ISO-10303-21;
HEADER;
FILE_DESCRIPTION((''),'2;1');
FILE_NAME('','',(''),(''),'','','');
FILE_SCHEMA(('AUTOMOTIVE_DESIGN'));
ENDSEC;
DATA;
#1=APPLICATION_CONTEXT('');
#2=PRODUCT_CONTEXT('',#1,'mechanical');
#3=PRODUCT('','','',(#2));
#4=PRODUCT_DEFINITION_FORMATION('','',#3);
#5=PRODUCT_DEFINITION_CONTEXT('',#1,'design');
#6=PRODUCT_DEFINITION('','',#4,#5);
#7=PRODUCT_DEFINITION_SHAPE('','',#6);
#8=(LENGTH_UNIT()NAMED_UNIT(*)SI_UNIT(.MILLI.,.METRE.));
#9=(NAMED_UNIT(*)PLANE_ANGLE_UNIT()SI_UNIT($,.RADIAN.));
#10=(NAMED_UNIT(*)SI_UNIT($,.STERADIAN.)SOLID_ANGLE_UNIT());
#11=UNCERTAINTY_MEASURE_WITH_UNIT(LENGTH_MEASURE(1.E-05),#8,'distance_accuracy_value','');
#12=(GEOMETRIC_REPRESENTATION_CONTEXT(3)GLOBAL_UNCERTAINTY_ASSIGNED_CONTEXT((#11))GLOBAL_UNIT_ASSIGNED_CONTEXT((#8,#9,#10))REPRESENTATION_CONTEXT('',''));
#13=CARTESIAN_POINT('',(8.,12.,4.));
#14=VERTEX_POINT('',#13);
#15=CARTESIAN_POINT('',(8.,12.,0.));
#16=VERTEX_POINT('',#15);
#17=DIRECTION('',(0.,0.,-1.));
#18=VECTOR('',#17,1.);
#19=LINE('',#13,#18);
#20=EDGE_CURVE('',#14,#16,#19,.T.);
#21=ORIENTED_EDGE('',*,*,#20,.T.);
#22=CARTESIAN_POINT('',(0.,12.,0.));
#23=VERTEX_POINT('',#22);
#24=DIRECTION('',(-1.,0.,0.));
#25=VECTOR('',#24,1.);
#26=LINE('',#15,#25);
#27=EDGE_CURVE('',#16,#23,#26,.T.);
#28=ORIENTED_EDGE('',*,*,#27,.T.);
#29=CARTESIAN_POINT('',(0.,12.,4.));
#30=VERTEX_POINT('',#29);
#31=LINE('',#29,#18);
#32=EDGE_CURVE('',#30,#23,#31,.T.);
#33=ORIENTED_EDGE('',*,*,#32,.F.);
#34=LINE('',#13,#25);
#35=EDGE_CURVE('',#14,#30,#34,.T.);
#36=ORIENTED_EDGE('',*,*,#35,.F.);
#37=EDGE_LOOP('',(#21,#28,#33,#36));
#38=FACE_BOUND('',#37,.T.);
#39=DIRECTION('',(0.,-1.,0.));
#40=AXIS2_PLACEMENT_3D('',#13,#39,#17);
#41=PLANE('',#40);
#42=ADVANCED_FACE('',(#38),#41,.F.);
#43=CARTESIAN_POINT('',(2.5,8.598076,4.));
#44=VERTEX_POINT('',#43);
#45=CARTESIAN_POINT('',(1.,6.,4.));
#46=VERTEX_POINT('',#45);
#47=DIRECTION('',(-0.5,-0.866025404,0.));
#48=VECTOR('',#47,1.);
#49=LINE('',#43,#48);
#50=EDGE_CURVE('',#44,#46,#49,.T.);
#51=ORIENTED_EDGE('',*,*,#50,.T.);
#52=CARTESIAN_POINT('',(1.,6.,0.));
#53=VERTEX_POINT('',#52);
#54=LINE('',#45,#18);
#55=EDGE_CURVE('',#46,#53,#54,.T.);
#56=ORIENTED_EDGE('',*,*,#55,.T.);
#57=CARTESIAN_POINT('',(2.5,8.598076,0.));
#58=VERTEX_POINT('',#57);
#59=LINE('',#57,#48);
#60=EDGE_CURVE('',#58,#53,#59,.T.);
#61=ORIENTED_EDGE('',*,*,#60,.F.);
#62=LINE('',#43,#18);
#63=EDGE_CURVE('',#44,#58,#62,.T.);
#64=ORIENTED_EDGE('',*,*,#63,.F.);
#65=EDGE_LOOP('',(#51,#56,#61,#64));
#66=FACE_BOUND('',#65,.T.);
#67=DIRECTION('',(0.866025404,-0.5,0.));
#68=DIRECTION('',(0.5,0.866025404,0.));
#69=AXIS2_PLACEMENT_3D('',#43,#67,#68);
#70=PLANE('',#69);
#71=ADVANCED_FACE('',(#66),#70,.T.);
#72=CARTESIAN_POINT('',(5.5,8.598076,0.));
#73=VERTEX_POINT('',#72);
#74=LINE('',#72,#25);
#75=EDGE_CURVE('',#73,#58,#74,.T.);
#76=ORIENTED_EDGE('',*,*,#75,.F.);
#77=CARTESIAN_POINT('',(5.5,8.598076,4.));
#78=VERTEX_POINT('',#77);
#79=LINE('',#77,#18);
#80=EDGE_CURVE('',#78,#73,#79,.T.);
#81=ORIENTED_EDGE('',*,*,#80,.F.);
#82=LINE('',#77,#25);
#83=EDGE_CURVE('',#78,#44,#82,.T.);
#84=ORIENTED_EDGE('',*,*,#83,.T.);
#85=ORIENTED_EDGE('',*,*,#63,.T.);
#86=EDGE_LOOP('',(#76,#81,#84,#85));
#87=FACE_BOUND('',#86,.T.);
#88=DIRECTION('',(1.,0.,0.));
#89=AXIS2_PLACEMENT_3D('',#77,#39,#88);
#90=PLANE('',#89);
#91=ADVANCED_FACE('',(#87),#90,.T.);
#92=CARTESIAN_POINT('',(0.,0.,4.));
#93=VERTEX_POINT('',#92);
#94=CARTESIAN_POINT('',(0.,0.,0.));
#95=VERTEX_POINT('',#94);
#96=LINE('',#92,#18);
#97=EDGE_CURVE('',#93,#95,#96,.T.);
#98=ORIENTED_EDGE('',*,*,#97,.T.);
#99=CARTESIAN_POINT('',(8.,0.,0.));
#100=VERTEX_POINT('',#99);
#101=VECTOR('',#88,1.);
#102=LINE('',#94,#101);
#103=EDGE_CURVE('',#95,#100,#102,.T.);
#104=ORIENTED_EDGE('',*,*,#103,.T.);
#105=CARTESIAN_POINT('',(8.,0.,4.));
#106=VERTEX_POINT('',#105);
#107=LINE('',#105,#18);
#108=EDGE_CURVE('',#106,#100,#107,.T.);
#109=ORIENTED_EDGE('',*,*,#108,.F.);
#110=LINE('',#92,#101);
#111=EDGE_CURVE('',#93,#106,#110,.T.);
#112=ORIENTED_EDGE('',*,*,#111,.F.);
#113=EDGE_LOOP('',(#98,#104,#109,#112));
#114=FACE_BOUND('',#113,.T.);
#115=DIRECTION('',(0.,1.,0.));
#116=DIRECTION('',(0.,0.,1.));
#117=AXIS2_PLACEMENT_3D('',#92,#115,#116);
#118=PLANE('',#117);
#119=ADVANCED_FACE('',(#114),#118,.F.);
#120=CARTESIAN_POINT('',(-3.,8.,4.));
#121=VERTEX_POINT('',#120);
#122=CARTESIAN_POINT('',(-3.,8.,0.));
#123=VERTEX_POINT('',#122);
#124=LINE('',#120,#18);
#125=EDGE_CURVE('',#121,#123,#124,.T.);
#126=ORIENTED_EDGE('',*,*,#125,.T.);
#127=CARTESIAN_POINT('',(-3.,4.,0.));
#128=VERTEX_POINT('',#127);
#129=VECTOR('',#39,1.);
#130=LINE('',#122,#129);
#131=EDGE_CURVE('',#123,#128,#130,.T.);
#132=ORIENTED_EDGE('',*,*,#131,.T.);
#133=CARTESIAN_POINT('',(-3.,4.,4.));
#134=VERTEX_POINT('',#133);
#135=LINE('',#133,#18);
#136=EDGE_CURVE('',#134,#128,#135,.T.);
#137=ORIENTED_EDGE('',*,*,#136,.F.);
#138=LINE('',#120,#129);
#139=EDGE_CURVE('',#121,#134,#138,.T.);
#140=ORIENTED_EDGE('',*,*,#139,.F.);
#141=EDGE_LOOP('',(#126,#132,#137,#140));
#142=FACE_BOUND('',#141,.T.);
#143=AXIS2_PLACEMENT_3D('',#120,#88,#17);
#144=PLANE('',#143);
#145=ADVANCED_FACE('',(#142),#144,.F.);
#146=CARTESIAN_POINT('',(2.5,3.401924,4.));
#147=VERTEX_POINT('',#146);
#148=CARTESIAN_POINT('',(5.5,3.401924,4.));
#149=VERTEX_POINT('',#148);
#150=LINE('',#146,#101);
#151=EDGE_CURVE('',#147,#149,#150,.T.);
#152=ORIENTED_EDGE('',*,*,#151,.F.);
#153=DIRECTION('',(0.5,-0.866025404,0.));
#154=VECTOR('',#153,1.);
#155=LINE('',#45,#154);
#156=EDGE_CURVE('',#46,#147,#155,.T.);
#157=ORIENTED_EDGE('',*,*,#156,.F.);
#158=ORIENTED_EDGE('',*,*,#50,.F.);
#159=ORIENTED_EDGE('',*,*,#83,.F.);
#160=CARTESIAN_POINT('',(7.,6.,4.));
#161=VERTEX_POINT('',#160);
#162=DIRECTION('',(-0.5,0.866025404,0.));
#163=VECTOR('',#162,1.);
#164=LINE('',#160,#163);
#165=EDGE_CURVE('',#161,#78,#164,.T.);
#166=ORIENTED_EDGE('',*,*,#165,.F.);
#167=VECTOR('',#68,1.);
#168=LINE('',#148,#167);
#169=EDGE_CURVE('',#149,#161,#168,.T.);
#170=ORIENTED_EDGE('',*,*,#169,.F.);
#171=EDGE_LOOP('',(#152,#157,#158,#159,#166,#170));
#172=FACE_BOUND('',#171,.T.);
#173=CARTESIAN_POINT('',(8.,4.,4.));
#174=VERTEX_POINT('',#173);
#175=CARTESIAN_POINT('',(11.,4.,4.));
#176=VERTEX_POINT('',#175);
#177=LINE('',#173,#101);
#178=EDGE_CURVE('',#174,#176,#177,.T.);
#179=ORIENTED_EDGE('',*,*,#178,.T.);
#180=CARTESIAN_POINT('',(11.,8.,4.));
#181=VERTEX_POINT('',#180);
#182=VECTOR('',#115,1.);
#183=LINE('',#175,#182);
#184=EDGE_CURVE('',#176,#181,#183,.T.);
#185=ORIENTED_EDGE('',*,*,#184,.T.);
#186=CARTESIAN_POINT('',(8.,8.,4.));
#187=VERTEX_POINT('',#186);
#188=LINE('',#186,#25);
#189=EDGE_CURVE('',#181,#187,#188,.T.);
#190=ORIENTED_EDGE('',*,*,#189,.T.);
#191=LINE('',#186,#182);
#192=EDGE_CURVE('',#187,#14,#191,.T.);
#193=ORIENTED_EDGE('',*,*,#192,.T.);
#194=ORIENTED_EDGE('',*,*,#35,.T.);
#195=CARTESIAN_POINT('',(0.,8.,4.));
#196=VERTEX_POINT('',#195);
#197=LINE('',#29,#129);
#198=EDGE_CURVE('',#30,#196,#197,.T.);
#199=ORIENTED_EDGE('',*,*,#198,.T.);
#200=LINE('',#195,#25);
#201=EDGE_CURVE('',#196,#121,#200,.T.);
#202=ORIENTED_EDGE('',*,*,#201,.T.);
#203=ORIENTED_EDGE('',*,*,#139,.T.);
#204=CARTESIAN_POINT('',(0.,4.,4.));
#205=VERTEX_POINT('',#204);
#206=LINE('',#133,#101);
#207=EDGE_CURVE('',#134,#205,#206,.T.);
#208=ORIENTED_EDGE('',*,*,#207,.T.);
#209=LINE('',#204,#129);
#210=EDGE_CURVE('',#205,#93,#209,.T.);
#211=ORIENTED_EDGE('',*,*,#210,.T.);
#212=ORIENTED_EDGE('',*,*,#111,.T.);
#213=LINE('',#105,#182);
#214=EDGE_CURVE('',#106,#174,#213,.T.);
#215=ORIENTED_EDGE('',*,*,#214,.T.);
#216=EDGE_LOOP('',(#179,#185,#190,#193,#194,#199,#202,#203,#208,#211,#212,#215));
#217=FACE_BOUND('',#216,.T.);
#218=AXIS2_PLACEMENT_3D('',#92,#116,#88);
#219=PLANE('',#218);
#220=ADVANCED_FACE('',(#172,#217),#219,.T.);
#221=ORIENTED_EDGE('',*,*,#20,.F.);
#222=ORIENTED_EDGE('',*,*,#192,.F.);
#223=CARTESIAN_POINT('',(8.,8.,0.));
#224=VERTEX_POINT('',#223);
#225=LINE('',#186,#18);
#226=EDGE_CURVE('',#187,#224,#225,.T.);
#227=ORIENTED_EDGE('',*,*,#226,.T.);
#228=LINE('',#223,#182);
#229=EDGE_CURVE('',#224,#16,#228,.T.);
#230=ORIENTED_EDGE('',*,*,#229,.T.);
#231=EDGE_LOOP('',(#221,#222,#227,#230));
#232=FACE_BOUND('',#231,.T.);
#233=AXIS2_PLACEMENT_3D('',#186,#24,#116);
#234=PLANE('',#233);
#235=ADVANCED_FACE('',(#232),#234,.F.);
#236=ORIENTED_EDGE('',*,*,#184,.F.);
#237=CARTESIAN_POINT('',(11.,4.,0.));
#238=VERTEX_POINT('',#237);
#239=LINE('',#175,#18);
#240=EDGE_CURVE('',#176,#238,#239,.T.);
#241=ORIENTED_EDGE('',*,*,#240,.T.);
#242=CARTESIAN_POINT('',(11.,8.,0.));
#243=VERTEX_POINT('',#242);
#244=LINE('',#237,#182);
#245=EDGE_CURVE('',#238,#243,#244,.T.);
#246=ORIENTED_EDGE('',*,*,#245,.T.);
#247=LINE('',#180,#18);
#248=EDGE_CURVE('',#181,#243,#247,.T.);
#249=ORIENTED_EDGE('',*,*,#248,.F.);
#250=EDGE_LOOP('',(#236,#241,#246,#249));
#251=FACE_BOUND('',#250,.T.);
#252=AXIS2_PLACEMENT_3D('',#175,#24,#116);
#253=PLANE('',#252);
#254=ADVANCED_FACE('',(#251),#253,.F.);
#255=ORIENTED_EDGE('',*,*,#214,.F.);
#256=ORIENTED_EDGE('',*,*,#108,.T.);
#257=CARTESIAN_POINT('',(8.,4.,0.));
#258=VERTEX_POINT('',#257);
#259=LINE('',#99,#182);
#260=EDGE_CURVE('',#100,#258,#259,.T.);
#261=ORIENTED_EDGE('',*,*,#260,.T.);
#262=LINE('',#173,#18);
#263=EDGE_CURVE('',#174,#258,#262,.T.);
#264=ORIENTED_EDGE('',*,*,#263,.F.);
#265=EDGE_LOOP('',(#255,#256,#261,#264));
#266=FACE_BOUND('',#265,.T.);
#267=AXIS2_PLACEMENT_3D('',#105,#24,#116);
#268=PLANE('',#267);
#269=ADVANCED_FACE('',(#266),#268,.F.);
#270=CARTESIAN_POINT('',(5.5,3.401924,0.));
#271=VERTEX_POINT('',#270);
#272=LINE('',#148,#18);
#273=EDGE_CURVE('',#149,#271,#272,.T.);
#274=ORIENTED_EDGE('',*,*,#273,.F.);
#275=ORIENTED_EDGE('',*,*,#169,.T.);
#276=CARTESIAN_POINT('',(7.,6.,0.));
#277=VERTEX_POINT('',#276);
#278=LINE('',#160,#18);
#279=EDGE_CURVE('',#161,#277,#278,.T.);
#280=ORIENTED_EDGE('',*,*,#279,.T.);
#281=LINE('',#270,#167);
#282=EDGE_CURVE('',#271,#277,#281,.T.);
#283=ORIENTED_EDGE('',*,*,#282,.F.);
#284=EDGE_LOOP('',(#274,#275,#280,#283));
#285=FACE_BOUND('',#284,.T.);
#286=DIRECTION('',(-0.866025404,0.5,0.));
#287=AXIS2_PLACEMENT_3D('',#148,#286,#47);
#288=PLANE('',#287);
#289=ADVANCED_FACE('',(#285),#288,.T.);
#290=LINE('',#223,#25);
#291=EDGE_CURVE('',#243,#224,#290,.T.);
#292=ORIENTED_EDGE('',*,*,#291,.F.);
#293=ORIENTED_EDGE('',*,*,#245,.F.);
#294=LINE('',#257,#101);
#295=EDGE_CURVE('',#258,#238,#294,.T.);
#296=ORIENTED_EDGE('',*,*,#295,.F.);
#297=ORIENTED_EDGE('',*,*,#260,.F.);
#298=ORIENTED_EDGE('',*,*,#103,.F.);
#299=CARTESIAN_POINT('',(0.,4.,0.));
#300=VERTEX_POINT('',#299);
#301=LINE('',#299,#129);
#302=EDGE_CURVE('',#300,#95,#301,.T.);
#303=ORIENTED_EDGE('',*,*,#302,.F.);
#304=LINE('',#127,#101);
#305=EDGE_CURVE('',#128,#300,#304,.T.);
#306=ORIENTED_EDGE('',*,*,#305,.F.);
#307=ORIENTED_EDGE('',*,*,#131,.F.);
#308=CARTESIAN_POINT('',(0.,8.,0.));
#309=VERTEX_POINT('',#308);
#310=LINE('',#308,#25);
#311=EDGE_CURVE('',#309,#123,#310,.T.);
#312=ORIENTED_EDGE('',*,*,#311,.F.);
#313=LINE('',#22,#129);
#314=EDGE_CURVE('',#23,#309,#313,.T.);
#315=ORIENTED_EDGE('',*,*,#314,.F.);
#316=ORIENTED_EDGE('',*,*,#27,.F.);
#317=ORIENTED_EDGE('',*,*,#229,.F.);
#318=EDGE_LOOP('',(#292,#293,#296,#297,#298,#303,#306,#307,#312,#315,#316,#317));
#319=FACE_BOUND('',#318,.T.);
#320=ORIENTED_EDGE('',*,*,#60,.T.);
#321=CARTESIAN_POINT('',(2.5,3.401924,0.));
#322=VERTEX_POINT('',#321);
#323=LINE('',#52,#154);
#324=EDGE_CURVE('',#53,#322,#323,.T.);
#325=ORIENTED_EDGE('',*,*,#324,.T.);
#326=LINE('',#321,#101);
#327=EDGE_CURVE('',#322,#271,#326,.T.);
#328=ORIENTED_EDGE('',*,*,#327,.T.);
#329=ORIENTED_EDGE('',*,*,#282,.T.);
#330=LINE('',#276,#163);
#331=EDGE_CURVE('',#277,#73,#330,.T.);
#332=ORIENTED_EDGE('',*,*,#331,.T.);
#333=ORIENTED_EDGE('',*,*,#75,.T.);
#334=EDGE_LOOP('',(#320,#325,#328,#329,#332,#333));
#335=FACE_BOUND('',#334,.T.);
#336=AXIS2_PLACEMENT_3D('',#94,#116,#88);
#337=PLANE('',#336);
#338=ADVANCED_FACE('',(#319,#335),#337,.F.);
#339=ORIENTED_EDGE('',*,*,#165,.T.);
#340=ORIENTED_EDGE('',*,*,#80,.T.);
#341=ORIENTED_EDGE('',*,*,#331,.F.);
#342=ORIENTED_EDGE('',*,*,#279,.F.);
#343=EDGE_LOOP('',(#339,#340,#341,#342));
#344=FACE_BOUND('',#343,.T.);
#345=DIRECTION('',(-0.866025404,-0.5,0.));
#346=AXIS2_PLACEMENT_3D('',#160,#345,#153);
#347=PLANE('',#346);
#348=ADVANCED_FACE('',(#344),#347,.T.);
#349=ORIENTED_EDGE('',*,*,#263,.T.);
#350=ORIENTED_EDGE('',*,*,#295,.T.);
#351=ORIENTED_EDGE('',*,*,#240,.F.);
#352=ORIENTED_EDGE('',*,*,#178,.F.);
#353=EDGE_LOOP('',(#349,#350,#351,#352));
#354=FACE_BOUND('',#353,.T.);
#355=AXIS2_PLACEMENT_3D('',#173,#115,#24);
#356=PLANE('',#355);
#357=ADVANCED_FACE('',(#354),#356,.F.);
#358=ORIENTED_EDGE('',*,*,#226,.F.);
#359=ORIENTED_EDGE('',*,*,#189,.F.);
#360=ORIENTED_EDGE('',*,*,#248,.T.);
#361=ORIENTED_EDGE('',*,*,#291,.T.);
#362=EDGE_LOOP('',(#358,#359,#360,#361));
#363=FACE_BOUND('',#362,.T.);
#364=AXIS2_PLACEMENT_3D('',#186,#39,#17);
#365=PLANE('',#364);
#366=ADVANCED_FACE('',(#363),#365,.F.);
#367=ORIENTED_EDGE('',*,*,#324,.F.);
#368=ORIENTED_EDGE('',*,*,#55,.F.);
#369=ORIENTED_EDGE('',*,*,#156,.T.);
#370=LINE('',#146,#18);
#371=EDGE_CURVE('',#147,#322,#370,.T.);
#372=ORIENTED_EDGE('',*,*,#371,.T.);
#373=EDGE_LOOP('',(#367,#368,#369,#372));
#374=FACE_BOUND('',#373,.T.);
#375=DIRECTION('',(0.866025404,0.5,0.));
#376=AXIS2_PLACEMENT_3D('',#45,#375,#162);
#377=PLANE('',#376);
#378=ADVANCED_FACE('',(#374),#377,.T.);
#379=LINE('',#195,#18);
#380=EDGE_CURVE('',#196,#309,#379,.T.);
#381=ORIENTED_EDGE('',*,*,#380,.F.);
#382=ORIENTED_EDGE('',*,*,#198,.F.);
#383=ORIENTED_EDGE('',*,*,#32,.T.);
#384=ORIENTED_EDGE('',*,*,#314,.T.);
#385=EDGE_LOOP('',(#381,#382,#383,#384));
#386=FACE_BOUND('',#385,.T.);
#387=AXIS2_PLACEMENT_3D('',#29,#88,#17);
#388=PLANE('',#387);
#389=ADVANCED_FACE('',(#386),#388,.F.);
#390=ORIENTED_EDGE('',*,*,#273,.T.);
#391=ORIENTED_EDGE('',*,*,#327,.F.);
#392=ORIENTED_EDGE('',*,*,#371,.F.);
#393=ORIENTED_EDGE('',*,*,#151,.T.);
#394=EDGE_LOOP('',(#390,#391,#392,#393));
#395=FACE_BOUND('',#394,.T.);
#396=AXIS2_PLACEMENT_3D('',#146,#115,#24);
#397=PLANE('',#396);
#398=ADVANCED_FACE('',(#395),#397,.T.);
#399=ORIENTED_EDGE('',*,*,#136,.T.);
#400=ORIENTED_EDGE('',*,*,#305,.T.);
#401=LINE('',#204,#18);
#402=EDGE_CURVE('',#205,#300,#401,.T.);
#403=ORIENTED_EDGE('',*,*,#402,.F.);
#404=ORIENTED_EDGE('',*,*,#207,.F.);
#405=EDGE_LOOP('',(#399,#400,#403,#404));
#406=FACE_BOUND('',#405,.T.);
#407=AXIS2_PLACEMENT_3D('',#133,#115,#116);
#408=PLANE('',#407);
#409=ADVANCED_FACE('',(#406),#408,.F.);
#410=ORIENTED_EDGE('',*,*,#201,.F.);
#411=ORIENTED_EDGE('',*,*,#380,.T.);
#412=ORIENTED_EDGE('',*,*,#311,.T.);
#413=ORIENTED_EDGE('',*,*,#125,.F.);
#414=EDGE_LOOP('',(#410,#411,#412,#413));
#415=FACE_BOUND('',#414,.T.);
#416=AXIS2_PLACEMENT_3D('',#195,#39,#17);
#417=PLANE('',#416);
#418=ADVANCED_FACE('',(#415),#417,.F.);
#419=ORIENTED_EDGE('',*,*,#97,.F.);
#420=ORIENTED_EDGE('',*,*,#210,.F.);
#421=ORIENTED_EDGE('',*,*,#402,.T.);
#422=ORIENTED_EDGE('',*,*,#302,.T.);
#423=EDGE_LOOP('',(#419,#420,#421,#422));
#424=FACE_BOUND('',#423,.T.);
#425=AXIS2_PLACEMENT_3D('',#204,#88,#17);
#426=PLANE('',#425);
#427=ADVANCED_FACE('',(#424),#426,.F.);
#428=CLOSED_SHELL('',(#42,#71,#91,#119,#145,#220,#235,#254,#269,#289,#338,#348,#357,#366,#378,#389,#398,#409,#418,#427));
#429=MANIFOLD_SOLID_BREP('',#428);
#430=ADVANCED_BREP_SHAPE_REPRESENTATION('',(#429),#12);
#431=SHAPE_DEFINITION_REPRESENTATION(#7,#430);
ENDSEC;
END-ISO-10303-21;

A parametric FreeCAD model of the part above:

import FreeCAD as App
import Part
import Sketcher
from FreeCAD import Vector
Q = App.Units.Quantity

doc = App.newDocument("Part")
body = doc.addObject("PartDesign::Body", "Body")

# Sketch on XY plane
sketch1 = body.newObject("Sketcher::SketchObject", "Sketch")
sketch1.AttachmentSupport = (doc.getObject("XY_Plane"), [""])
sketch1.MapMode = "FlatFace"
sketch1.addGeometry([
    Part.LineSegment(Vector(0, 0, 0), Vector(8, 0, 0)),  # 0
    Part.LineSegment(Vector(8, 0, 0), Vector(8, 4, 0)),  # 1
    Part.LineSegment(Vector(8, 4, 0), Vector(11, 4, 0)),  # 2
    Part.LineSegment(Vector(11, 4, 0), Vector(11, 8, 0)),  # 3
    Part.LineSegment(Vector(11, 8, 0), Vector(8, 8, 0)),  # 4
    Part.LineSegment(Vector(8, 8, 0), Vector(8, 12, 0)),  # 5
    Part.LineSegment(Vector(8, 12, 0), Vector(0, 12, 0)),  # 6
    Part.LineSegment(Vector(0, 12, 0), Vector(0, 8, 0)),  # 7
    Part.LineSegment(Vector(0, 8, 0), Vector(-3, 8, 0)),  # 8
    Part.LineSegment(Vector(-3, 8, 0), Vector(-3, 4, 0)),  # 9
    Part.LineSegment(Vector(-3, 4, 0), Vector(0, 4, 0)),  # 10
    Part.LineSegment(Vector(0, 4, 0), Vector(0, 0, 0)),  # 11
    Part.LineSegment(Vector(5.5, 8.598076, 0), Vector(7, 6, 0)),  # 12
    Part.LineSegment(Vector(7, 6, 0), Vector(5.5, 3.401924, 0)),  # 13
    Part.LineSegment(Vector(5.5, 3.401924, 0), Vector(2.5, 3.401924, 0)),  # 14
    Part.LineSegment(Vector(2.5, 3.401924, 0), Vector(1, 6, 0)),  # 15
    Part.LineSegment(Vector(1, 6, 0), Vector(2.5, 8.598076, 0)),  # 16
    Part.LineSegment(Vector(2.5, 8.598076, 0), Vector(5.5, 8.598076, 0)),  # 17
], False)
sketch1.addConstraint([
    Sketcher.Constraint("Coincident", 0, 2, 1, 1),
    Sketcher.Constraint("Coincident", 1, 2, 2, 1),
    Sketcher.Constraint("Coincident", 2, 2, 3, 1),
    Sketcher.Constraint("Coincident", 3, 2, 4, 1),
    Sketcher.Constraint("Coincident", 4, 2, 5, 1),
    Sketcher.Constraint("Coincident", 5, 2, 6, 1),
    Sketcher.Constraint("Coincident", 6, 2, 7, 1),
    Sketcher.Constraint("Coincident", 7, 2, 8, 1),
    Sketcher.Constraint("Coincident", 8, 2, 9, 1),
    Sketcher.Constraint("Coincident", 9, 2, 10, 1),
    Sketcher.Constraint("Coincident", 10, 2, 11, 1),
    Sketcher.Constraint("Coincident", 11, 2, 0, 1),
    Sketcher.Constraint("Coincident", 12, 2, 13, 1),
    Sketcher.Constraint("Coincident", 13, 2, 14, 1),
    Sketcher.Constraint("Coincident", 14, 2, 15, 1),
    Sketcher.Constraint("Coincident", 15, 2, 16, 1),
    Sketcher.Constraint("Coincident", 16, 2, 17, 1),
    Sketcher.Constraint("Coincident", 17, 2, 12, 1),
    Sketcher.Constraint("Horizontal", 0),
    Sketcher.Constraint("Vertical", 1),
    Sketcher.Constraint("Horizontal", 2),
    Sketcher.Constraint("Vertical", 3),
    Sketcher.Constraint("Horizontal", 4),
    Sketcher.Constraint("Vertical", 5),
    Sketcher.Constraint("Horizontal", 6),
    Sketcher.Constraint("Vertical", 7),
    Sketcher.Constraint("Horizontal", 8),
    Sketcher.Constraint("Vertical", 9),
    Sketcher.Constraint("Horizontal", 10),
    Sketcher.Constraint("Vertical", 11),
    Sketcher.Constraint("Horizontal", 14),
    Sketcher.Constraint("Horizontal", 17),
    Sketcher.Constraint("Coincident", 11, 2, -1, 1),
    Sketcher.Constraint("PointOnObject", 6, 2, -2),
    Sketcher.Constraint("Parallel", 12, 15),
    Sketcher.Constraint("Parallel", 13, 16),
    Sketcher.Constraint("Horizontal", 4, 2, 7, 2),
    Sketcher.Constraint("Horizontal", 2, 2, 9, 2),
    Sketcher.Constraint("Horizontal", 12, 2, 15, 2),
    Sketcher.Constraint("Vertical", 1, 2, 4, 2),
    Sketcher.Constraint("Vertical", 14, 2, 16, 2),
    Sketcher.Constraint("Vertical", 13, 2, 17, 2),
    Sketcher.Constraint("Equal", 4, 8),
    Sketcher.Constraint("Equal", 10, 14),
    Sketcher.Constraint("Equal", 1, 3),
    Sketcher.Constraint("Equal", 3, 5),
    Sketcher.Constraint("DistanceX", 0, 1, 0, 2, Q("8 mm")),
    Sketcher.Constraint("DistanceX", 2, 1, 2, 2, Q("3 mm")),
    Sketcher.Constraint("DistanceY", 1, 1, 1, 2, Q("4 mm")),
    Sketcher.Constraint("Angle", 12, Q("-60 deg")),
    Sketcher.Constraint("Distance", 12, Q("3 mm")),
    Sketcher.Constraint("DistanceX", -1, 1, 12, 2, Q("7 mm")),
    Sketcher.Constraint("DistanceY", -1, 1, 12, 2, Q("6 mm")),
])
pad1 = body.newObject("PartDesign::Pad", "Pad")
pad1.Profile = sketch1
pad1.Length = 4

doc.recompute()
